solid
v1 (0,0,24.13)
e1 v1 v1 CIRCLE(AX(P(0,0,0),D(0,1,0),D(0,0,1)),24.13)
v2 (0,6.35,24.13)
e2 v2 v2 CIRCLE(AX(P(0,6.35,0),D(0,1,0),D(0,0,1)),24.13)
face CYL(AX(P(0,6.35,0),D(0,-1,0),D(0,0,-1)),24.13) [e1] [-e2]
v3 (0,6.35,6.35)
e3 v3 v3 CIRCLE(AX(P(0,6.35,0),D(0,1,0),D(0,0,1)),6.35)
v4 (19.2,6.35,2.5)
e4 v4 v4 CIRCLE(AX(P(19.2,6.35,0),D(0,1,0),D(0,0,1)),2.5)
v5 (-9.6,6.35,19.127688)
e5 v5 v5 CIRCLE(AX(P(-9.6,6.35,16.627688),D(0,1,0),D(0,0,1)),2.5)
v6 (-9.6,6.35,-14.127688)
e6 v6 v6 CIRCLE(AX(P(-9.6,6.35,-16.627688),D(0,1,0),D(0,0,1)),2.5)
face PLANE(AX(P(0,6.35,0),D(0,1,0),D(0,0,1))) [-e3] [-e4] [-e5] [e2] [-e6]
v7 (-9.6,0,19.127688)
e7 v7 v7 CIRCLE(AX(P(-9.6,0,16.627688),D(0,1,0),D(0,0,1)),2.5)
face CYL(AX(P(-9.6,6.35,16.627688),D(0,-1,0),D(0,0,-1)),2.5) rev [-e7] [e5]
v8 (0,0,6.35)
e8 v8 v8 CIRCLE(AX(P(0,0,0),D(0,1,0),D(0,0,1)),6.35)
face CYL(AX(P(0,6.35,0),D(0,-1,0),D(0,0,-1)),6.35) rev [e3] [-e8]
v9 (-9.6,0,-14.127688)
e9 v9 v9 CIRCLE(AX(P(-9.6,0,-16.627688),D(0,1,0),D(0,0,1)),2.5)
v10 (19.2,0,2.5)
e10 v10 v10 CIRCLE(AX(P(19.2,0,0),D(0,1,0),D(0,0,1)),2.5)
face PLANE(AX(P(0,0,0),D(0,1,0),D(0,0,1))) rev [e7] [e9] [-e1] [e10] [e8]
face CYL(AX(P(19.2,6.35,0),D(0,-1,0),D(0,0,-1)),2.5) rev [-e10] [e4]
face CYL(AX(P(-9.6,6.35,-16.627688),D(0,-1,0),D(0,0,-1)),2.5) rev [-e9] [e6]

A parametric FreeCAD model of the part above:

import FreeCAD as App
import Part
import Sketcher
from FreeCAD import Vector
Q = App.Units.Quantity

doc = App.newDocument("Part")
body = doc.addObject("PartDesign::Body", "Body")

# Sketch on XZ plane
sketch1 = body.newObject("Sketcher::SketchObject", "Sketch")
sketch1.AttachmentSupport = (doc.getObject("XZ_Plane"), [""])
sketch1.MapMode = "FlatFace"
sketch1.addGeometry([
    Part.Circle(Vector(0, 0, 0), Vector(0, 0, 1), 24.1),  # 0
    Part.Circle(Vector(-9.6, 16.6, 0), Vector(0, 0, 1), 2.5),  # 1
    Part.Circle(Vector(0, 0, 0), Vector(0, 0, 1), 6.3),  # 2
    Part.Circle(Vector(-9.6, -16.6, 0), Vector(0, 0, 1), 2.5),  # 3
    Part.Circle(Vector(19.2, 0, 0), Vector(0, 0, 1), 2.5),  # 4
], False)
sketch1.addConstraint([
    Sketcher.Constraint("Coincident", 0, 3, -1, 1),
    Sketcher.Constraint("Coincident", 2, 3, -1, 1),
    Sketcher.Constraint("Equal", 1, 3),
    Sketcher.Constraint("Equal", 3, 4),
    Sketcher.Constraint("Symmetric", 1, 3, 3, 3, -1),
    Sketcher.Constraint("PointOnObject", 4, 3, -1),
    Sketcher.Constraint("Diameter", 0, Q("1.9 in")),
    Sketcher.Constraint("Diameter", 2, Q("0.5 in")),
    Sketcher.Constraint("Diameter", 1, 5.0),
    Sketcher.Constraint("DistanceX", 1, 3, -1, 1, 9.6),
    Sketcher.Constraint("DistanceX", -1, 1, 4, 3, 19.2),
    Sketcher.Constraint("DistanceY", -1, 1, 1, 3, 16.627688),
])
pad1 = body.newObject("PartDesign::Pad", "Pad")
pad1.Profile = sketch1
pad1.Length = Q("0.25 in")
pad1.Reversed = True

doc.recompute()
